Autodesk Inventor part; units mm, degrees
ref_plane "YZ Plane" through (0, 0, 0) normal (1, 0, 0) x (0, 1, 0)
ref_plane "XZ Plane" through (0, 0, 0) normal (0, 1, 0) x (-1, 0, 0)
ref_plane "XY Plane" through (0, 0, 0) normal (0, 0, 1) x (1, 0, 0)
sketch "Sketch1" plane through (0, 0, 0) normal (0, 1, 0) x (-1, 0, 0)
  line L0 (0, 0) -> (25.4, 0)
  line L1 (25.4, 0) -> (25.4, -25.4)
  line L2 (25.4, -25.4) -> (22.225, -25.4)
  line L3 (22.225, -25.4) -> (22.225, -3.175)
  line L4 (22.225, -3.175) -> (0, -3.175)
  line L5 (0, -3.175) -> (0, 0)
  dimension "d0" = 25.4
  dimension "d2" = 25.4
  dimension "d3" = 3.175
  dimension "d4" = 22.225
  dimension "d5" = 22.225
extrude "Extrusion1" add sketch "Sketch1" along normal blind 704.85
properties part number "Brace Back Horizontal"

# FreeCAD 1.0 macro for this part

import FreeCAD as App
import Part
import Sketcher
Q = App.Units.Quantity

doc = App.newDocument("Part")
body = doc.addObject("PartDesign::Body", "Body")

# Sketch on XZ plane
sketch1 = body.newObject("Sketcher::SketchObject", "Sketch")
sketch1.AttachmentSupport = (doc.getObject("XZ_Plane"), [""])
sketch1.MapMode = "FlatFace"
sketch1.addGeometry([
    Part.LineSegment(App.Vector(-25.4, 0, 0), App.Vector(0, 0, 0)),  # 0
    Part.LineSegment(App.Vector(0, 0, 0), App.Vector(0, -3.175, 0)),  # 1
    Part.LineSegment(App.Vector(0, -3.175, 0), App.Vector(-22.225, -3.175, 0)),  # 2
    Part.LineSegment(App.Vector(-22.225, -3.175, 0), App.Vector(-22.225, -25.4, 0)),  # 3
    Part.LineSegment(App.Vector(-22.225, -25.4, 0), App.Vector(-25.4, -25.4, 0)),  # 4
    Part.LineSegment(App.Vector(-25.4, -25.4, 0), App.Vector(-25.4, 0, 0)),  # 5
], False)
sketch1.addConstraint([
    Sketcher.Constraint("Coincident", 0, 2, 1, 1),
    Sketcher.Constraint("Coincident", 1, 2, 2, 1),
    Sketcher.Constraint("Coincident", 2, 2, 3, 1),
    Sketcher.Constraint("Coincident", 3, 2, 4, 1),
    Sketcher.Constraint("Coincident", 4, 2, 5, 1),
    Sketcher.Constraint("Coincident", 5, 2, 0, 1),
    Sketcher.Constraint("Horizontal", 0),
    Sketcher.Constraint("Vertical", 1),
    Sketcher.Constraint("Horizontal", 2),
    Sketcher.Constraint("Vertical", 3),
    Sketcher.Constraint("Horizontal", 4),
    Sketcher.Constraint("Vertical", 5),
    Sketcher.Constraint("Coincident", 0, 2, -1, 1),
    Sketcher.Constraint("Equal", 4, 1),
    Sketcher.Constraint("Equal", 2, 3),
    Sketcher.Constraint("DistanceX", 0, 1, 0, 2, Q("1 in")),
    Sketcher.Constraint("DistanceX", 2, 2, 2, 1, Q("0.875 in")),
])
pad1 = body.newObject("PartDesign::Pad", "Pad")
pad1.Profile = sketch1
pad1.Length = Q("27.75 in")
pad1.Reversed = True

doc.recompute()
